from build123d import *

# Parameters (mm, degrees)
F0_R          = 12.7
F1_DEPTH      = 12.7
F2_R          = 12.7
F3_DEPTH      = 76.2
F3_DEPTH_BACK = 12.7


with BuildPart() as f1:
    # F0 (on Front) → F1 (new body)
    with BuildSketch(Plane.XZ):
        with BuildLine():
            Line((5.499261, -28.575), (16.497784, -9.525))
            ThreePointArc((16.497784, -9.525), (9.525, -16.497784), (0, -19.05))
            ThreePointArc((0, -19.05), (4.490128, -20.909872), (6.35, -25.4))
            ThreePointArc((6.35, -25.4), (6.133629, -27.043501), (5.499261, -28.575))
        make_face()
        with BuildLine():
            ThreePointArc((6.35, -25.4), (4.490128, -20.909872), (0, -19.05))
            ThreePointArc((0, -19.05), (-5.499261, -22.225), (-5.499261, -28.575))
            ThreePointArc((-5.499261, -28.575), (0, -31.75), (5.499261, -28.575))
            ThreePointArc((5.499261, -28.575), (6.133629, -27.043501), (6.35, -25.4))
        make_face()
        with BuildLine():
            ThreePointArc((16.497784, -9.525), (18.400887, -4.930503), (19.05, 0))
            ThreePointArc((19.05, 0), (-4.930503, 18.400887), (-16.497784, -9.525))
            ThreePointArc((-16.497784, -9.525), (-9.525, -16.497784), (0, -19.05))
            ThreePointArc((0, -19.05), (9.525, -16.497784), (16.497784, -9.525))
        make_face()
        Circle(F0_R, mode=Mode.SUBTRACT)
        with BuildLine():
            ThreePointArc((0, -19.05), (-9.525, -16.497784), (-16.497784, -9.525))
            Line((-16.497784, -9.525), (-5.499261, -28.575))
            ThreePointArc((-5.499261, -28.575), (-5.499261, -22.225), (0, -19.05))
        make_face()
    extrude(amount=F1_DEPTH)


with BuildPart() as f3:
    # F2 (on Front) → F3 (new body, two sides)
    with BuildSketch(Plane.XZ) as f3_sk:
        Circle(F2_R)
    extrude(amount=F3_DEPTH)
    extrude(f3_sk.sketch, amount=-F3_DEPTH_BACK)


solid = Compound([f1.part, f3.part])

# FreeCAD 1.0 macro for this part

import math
import FreeCAD as App
import Part
import Sketcher
from FreeCAD import Vector
Q = App.Units.Quantity

doc = App.newDocument("Part")
body = doc.addObject("PartDesign::Body", "Body")

# Sketch on XZ plane
sketch1 = doc.addObject("Sketcher::SketchObject", "Sketch")
body.addObject(sketch1)
sketch1.AttachmentSupport = (doc.XZ_Plane, [""])
sketch1.MapMode = "FlatFace"
sketch1.addGeometry(Part.LineSegment(Vector(5.499261, -28.575, 0), Vector(16.497784, -9.525, 0)), False)
sketch1.addGeometry(Part.ArcOfCircle(Part.Circle(Vector(0.000001, 0, 0), Vector(0, 0, 1), 19.049999), math.radians(-30), math.radians(0.000001)), False)
sketch1.addGeometry(Part.ArcOfCircle(Part.Circle(Vector(0, 0, 0), Vector(0, 0, 1), 19.05), math.radians(0), math.radians(210)), False)
sketch1.addGeometry(Part.LineSegment(Vector(-16.497784, -9.525, 0), Vector(-5.499261, -28.575, 0)), False)
sketch1.addGeometry(Part.ArcOfCircle(Part.Circle(Vector(0, -25.400001, 0), Vector(0, 0, 1), 6.349999), math.radians(-150.000003), math.radians(-29.999997)), False)
sketch1.addGeometry(Part.Circle(Vector(0, 0, 0), Vector(0, 0, 1), 12.7), False)
sketch1.addConstraint(Sketcher.Constraint("Tangent", 0, 2, 1, 1))
sketch1.addConstraint(Sketcher.Constraint("Tangent", 1, 2, 2, 1))
sketch1.addConstraint(Sketcher.Constraint("Tangent", 2, 2, 3, 1))
sketch1.addConstraint(Sketcher.Constraint("Tangent", 3, 2, 4, 1))
sketch1.addConstraint(Sketcher.Constraint("Tangent", 4, 2, 0, 1))
sketch1.addConstraint(Sketcher.Constraint("Coincident", 1, 3, -1, 1))
sketch1.addConstraint(Sketcher.Constraint("Coincident", 5, 3, -1, 1))
sketch1.addConstraint(Sketcher.Constraint("Equal", 1, 2))
sketch1.addConstraint(Sketcher.Constraint("PointOnObject", 4, 3, -2))
sketch1.addConstraint(Sketcher.Constraint("PointOnObject", 1, 2, -1))
sketch1.addConstraint(Sketcher.Constraint("Diameter", 5, Q("1 in")))
sketch1.addConstraint(Sketcher.Constraint("Radius", 1, Q("0.75 in")))
sketch1.addConstraint(Sketcher.Constraint("Radius", 4, Q("0.25 in")))
sketch1.addConstraint(Sketcher.Constraint("DistanceY", 4, 3, -1, 1, Q("1 in")))
pad1 = doc.addObject("PartDesign::Pad", "Pad")
body.addObject(pad1)
pad1.Profile = sketch1
pad1.Length = Q("0.5 in")
body2 = doc.addObject("PartDesign::Body", "Body001")

# Sketch on XZ plane
sketch2 = doc.addObject("Sketcher::SketchObject", "Sketch001")
body2.addObject(sketch2)
sketch2.AttachmentSupport = (doc.getObject("XZ_Plane001"), [""])
sketch2.MapMode = "FlatFace"
sketch2.addGeometry(Part.Circle(Vector(0, 0, 0), Vector(0, 0, 1), 12.7), False)
sketch2.addConstraint(Sketcher.Constraint("Coincident", 0, 3, -1, 1))
sketch2.addConstraint(Sketcher.Constraint("Diameter", 0, Q("1 in")))
pad2 = doc.addObject("PartDesign::Pad", "Pad001")
body2.addObject(pad2)
pad2.Profile = sketch2
pad2.Type = "TwoLengths"
pad2.Length = Q("3 in")
pad2.Length2 = Q("0.5 in")

doc.recompute()
